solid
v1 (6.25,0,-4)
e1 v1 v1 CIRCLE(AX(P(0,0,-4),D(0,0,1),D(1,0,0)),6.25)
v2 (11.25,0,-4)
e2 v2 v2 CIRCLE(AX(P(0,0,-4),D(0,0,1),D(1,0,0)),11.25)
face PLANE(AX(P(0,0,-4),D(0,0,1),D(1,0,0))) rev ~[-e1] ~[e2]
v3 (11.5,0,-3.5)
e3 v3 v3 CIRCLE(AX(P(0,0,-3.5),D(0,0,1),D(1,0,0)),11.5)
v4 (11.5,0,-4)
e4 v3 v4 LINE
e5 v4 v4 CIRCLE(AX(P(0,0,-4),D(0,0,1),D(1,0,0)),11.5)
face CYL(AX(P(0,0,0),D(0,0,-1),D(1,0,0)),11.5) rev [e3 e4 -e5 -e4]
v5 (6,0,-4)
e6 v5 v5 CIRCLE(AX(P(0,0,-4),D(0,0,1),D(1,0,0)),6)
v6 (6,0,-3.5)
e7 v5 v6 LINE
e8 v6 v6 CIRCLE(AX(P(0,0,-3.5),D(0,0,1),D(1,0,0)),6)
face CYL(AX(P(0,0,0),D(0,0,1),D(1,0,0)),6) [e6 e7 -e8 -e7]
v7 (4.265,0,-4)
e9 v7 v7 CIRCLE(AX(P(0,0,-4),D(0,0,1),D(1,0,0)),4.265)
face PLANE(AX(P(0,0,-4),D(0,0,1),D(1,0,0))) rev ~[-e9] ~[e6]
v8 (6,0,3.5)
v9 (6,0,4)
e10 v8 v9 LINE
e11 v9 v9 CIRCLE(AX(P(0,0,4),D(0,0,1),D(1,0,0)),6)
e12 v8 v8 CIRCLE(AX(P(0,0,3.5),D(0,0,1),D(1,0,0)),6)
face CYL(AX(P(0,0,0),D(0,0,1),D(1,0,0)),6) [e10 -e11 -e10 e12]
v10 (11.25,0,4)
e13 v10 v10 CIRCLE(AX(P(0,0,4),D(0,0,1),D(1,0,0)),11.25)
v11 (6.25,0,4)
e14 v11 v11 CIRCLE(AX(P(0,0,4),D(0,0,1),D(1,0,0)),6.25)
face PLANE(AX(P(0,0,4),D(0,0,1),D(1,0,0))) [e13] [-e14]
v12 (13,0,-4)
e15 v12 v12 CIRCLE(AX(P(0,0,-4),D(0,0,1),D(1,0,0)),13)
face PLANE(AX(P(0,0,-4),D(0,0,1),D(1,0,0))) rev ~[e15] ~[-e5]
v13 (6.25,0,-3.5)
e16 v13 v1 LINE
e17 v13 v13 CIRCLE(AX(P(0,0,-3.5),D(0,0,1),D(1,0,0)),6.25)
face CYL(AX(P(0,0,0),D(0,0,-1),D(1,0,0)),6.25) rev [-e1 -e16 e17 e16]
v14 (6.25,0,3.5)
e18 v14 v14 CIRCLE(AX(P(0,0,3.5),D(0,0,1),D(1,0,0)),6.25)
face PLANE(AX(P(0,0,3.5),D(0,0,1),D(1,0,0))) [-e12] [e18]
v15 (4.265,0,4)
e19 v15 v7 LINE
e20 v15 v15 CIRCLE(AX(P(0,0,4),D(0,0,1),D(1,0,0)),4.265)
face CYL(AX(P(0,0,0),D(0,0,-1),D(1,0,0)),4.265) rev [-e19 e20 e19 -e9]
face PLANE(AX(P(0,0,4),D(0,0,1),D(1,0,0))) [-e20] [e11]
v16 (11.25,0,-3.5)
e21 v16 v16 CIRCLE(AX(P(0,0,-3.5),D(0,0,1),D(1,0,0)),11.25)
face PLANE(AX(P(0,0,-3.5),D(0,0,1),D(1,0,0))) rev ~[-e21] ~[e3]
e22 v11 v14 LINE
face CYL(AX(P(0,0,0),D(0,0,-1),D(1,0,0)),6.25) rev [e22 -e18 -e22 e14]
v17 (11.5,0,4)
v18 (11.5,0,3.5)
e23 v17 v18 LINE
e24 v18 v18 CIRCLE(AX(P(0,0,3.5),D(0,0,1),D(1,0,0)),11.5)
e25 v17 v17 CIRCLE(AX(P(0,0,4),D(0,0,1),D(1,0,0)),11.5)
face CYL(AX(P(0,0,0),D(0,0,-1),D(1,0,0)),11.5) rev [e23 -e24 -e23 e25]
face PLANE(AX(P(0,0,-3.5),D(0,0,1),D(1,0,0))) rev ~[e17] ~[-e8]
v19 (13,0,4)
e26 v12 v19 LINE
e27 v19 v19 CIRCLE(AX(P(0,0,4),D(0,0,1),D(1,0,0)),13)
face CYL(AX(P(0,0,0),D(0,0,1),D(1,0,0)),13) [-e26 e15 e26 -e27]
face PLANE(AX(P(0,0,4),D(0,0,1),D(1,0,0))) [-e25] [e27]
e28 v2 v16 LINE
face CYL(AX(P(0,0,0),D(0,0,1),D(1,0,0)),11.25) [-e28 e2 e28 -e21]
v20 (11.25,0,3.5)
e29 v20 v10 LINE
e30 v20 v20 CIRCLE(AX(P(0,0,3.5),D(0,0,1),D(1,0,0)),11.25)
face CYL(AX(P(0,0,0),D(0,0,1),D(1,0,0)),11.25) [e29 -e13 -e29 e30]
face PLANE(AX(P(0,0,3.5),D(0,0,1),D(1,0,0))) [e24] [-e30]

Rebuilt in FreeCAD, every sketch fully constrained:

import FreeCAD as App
import Part
import Sketcher

V = App.Vector

doc = App.newDocument("Part")
body = doc.addObject("PartDesign::Body", "Body")

# Sketch on XY plane
sketch1 = body.newObject("Sketcher::SketchObject", "Sketch")
sketch1.AttachmentSupport = (doc.getObject("XY_Plane"), [""])
sketch1.MapMode = "FlatFace"
sketch1.addGeometry([
    Part.Circle(V(0, 0, 0), V(0, 0, 1), 13),
    Part.Circle(V(0, 0, 0), V(0, 0, 1), 11.5),
], False)
sketch1.addConstraint([
    Sketcher.Constraint("Coincident", 0, 3, -1, 1),
    Sketcher.Constraint("Coincident", 1, 3, -1, 1),
    Sketcher.Constraint("Diameter", 0, 26.0),
    Sketcher.Constraint("Diameter", 1, 23.0),
])
pad1 = body.newObject("PartDesign::Pad", "Pad")
pad1.Profile = sketch1
pad1.Length = 8
pad1.Midplane = True
body2 = doc.addObject("PartDesign::Body", "Body001")

# Sketch on XY plane
sketch2 = body2.newObject("Sketcher::SketchObject", "Sketch001")
sketch2.AttachmentSupport = (doc.getObject("XY_Plane001"), [""])
sketch2.MapMode = "FlatFace"
sketch2.addGeometry([
    Part.Circle(V(0, 0, 0), V(0, 0, 1), 6),
    Part.Circle(V(0, 0, 0), V(0, 0, 1), 4.265),
], False)
sketch2.addConstraint([
    Sketcher.Constraint("Coincident", 0, 3, -1, 1),
    Sketcher.Constraint("Coincident", 1, 3, -1, 1),
    Sketcher.Constraint("Diameter", 0, 12.0),
    Sketcher.Constraint("Diameter", 1, 8.53),
])
pad2 = body2.newObject("PartDesign::Pad", "Pad001")
pad2.Profile = sketch2
pad2.Length = 8
pad2.Midplane = True
body3 = doc.addObject("PartDesign::Body", "Body002")

# Sketch on XY plane
sketch3 = body3.newObject("Sketcher::SketchObject", "Sketch002")
sketch3.AttachmentSupport = (doc.getObject("XY_Plane002"), [""])
sketch3.MapMode = "FlatFace"
sketch3.addGeometry([
    Part.Circle(V(0, 0, 0), V(0, 0, 1), 11.25),
    Part.Circle(V(0, 0, 0), V(0, 0, 1), 6.25),
], False)
sketch3.addConstraint([
    Sketcher.Constraint("Coincident", 0, 3, -1, 1),
    Sketcher.Constraint("Coincident", 1, 3, -1, 1),
    Sketcher.Constraint("Diameter", 0, 22.5),
    Sketcher.Constraint("Diameter", 1, 12.5),
])
pad3 = body3.newObject("PartDesign::Pad", "Pad002")
pad3.Profile = sketch3
pad3.Length = 8
pad3.Midplane = True
body.AllowCompound = True
doc.recompute()

boolean = body.newObject("PartDesign::Boolean", "Boolean")
boolean.Type = "Fuse"
boolean.addObjects([body2])
doc.recompute()

boolean2 = body.newObject("PartDesign::Boolean", "Boolean001")
boolean2.Type = "Fuse"
boolean2.addObjects([body3])

# Sketch on XY plane
sketch4 = body.newObject("Sketcher::SketchObject", "Sketch003")
sketch4.AttachmentSupport = (doc.getObject("XY_Plane"), [""])
sketch4.MapMode = "FlatFace"
sketch4.addGeometry([
    Part.Circle(V(0, 0, 0), V(0, 0, 1), 11.5),
    Part.Circle(V(0, 0, 0), V(0, 0, 1), 11.25),
    Part.Circle(V(0, 0, 0), V(0, 0, 1), 6.25),
    Part.Circle(V(0, 0, 0), V(0, 0, 1), 6),
], False)
sketch4.addConstraint([
    Sketcher.Constraint("Coincident", 0, 3, -1, 1),
    Sketcher.Constraint("Coincident", 1, 3, -1, 1),
    Sketcher.Constraint("Coincident", 2, 3, -1, 1),
    Sketcher.Constraint("Coincident", 3, 3, -1, 1),
    Sketcher.Constraint("Diameter", 0, 23.0),
    Sketcher.Constraint("Diameter", 3, 12.0),
    Sketcher.Constraint("Diameter", 1, 22.5),
    Sketcher.Constraint("Diameter", 2, 12.5),
])
pad4 = body.newObject("PartDesign::Pad", "Pad003")
pad4.Profile = sketch4
pad4.Length = 7
pad4.Midplane = True

doc.recompute()
